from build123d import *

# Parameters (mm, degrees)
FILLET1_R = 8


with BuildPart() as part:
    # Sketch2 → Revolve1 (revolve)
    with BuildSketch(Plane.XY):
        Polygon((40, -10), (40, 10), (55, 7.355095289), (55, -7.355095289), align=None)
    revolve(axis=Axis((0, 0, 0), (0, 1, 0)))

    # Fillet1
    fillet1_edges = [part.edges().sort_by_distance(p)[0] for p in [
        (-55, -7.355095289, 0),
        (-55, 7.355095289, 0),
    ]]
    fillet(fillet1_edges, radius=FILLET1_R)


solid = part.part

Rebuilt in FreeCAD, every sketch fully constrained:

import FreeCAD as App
import Part
import Sketcher

V = App.Vector
Q = App.Units.Quantity


def edges_at(feature, points):
    """Names of the edges that pass closest to the given points."""
    edges = feature.Shape.Edges
    near = lambda p: min(range(len(edges)), key=lambda i: edges[i].distToShape(Part.Vertex(*p))[0])
    return sorted({f"Edge{near(p) + 1}" for p in points})


def add_polygon(sketch, points):
    """Adds a closed chain of lines whose ends are joined by coincident constraints."""
    first, n = sketch.GeometryCount, len(points)
    for a, b in zip(points, points[1:] + points[:1]):
        sketch.addGeometry(Part.LineSegment(App.Vector(*a, 0), App.Vector(*b, 0)), False)
    for i in range(n):
        sketch.addConstraint(Sketcher.Constraint("Coincident", first + i, 2, first + (i + 1) % n, 1))

doc = App.newDocument("Part")
params = doc.addObject("Spreadsheet::Sheet", "Params")
for row, (alias, value) in enumerate([
    ("sketch1_height", "20 mm"),
    ("revolution_angle", "360 deg"),
    ("fillet_radius", "8 mm"),
], start=1):
    params.set(f"A{row}", alias)
    params.set(f"B{row}", "=" + value)
    params.setAlias(f"B{row}", alias)

body = doc.addObject("PartDesign::Body", "Body")

# Sketch on XY plane
sketch1 = doc.addObject("Sketcher::SketchObject", "Sketch")
body.addObject(sketch1)
sketch1.AttachmentSupport = (doc.XY_Plane, [""])
sketch1.MapMode = "FlatFace"
add_polygon(sketch1, [(40, 10), (40, -10), (55, -7), (55, 7)])  # lines 0-3
sketch1.addConstraint(Sketcher.Constraint("Vertical", 0))
sketch1.addConstraint(Sketcher.Constraint("Vertical", 2))
sketch1.addConstraint(Sketcher.Constraint("Equal", 1, 3))
sketch1.addConstraint(Sketcher.Constraint("DistanceY", 0, 2, 0, 1, Q("20 mm")))
sketch1.addConstraint(Sketcher.Constraint("Angle", 1, Q("10 deg")))
sketch1.addConstraint(Sketcher.Constraint("DistanceX", -1, 1, 0, 2, Q("40 mm")))
sketch1.addConstraint(Sketcher.Constraint("DistanceY", 0, 2, -1, 1, Q("10 mm")))
sketch1.addConstraint(Sketcher.Constraint("DistanceX", -1, 1, 1, 2, Q("55 mm")))
sketch1.setExpression("Constraints[7]", "Params.sketch1_height")
revolution = doc.addObject("PartDesign::Revolution", "Revolution")
body.addObject(revolution)
revolution.Profile = sketch1
revolution.ReferenceAxis = (sketch1, ["V_Axis"])
revolution.setExpression("Angle", "Params.revolution_angle")
doc.recompute()

fillet = doc.addObject("PartDesign::Fillet", "Fillet")
body.addObject(fillet)
fillet.Base = (revolution, edges_at(revolution, [(-55, -7.355, 0), (-55, 7.355, 0)]))
fillet.setExpression("Radius", "Params.fillet_radius")

doc.recompute()
